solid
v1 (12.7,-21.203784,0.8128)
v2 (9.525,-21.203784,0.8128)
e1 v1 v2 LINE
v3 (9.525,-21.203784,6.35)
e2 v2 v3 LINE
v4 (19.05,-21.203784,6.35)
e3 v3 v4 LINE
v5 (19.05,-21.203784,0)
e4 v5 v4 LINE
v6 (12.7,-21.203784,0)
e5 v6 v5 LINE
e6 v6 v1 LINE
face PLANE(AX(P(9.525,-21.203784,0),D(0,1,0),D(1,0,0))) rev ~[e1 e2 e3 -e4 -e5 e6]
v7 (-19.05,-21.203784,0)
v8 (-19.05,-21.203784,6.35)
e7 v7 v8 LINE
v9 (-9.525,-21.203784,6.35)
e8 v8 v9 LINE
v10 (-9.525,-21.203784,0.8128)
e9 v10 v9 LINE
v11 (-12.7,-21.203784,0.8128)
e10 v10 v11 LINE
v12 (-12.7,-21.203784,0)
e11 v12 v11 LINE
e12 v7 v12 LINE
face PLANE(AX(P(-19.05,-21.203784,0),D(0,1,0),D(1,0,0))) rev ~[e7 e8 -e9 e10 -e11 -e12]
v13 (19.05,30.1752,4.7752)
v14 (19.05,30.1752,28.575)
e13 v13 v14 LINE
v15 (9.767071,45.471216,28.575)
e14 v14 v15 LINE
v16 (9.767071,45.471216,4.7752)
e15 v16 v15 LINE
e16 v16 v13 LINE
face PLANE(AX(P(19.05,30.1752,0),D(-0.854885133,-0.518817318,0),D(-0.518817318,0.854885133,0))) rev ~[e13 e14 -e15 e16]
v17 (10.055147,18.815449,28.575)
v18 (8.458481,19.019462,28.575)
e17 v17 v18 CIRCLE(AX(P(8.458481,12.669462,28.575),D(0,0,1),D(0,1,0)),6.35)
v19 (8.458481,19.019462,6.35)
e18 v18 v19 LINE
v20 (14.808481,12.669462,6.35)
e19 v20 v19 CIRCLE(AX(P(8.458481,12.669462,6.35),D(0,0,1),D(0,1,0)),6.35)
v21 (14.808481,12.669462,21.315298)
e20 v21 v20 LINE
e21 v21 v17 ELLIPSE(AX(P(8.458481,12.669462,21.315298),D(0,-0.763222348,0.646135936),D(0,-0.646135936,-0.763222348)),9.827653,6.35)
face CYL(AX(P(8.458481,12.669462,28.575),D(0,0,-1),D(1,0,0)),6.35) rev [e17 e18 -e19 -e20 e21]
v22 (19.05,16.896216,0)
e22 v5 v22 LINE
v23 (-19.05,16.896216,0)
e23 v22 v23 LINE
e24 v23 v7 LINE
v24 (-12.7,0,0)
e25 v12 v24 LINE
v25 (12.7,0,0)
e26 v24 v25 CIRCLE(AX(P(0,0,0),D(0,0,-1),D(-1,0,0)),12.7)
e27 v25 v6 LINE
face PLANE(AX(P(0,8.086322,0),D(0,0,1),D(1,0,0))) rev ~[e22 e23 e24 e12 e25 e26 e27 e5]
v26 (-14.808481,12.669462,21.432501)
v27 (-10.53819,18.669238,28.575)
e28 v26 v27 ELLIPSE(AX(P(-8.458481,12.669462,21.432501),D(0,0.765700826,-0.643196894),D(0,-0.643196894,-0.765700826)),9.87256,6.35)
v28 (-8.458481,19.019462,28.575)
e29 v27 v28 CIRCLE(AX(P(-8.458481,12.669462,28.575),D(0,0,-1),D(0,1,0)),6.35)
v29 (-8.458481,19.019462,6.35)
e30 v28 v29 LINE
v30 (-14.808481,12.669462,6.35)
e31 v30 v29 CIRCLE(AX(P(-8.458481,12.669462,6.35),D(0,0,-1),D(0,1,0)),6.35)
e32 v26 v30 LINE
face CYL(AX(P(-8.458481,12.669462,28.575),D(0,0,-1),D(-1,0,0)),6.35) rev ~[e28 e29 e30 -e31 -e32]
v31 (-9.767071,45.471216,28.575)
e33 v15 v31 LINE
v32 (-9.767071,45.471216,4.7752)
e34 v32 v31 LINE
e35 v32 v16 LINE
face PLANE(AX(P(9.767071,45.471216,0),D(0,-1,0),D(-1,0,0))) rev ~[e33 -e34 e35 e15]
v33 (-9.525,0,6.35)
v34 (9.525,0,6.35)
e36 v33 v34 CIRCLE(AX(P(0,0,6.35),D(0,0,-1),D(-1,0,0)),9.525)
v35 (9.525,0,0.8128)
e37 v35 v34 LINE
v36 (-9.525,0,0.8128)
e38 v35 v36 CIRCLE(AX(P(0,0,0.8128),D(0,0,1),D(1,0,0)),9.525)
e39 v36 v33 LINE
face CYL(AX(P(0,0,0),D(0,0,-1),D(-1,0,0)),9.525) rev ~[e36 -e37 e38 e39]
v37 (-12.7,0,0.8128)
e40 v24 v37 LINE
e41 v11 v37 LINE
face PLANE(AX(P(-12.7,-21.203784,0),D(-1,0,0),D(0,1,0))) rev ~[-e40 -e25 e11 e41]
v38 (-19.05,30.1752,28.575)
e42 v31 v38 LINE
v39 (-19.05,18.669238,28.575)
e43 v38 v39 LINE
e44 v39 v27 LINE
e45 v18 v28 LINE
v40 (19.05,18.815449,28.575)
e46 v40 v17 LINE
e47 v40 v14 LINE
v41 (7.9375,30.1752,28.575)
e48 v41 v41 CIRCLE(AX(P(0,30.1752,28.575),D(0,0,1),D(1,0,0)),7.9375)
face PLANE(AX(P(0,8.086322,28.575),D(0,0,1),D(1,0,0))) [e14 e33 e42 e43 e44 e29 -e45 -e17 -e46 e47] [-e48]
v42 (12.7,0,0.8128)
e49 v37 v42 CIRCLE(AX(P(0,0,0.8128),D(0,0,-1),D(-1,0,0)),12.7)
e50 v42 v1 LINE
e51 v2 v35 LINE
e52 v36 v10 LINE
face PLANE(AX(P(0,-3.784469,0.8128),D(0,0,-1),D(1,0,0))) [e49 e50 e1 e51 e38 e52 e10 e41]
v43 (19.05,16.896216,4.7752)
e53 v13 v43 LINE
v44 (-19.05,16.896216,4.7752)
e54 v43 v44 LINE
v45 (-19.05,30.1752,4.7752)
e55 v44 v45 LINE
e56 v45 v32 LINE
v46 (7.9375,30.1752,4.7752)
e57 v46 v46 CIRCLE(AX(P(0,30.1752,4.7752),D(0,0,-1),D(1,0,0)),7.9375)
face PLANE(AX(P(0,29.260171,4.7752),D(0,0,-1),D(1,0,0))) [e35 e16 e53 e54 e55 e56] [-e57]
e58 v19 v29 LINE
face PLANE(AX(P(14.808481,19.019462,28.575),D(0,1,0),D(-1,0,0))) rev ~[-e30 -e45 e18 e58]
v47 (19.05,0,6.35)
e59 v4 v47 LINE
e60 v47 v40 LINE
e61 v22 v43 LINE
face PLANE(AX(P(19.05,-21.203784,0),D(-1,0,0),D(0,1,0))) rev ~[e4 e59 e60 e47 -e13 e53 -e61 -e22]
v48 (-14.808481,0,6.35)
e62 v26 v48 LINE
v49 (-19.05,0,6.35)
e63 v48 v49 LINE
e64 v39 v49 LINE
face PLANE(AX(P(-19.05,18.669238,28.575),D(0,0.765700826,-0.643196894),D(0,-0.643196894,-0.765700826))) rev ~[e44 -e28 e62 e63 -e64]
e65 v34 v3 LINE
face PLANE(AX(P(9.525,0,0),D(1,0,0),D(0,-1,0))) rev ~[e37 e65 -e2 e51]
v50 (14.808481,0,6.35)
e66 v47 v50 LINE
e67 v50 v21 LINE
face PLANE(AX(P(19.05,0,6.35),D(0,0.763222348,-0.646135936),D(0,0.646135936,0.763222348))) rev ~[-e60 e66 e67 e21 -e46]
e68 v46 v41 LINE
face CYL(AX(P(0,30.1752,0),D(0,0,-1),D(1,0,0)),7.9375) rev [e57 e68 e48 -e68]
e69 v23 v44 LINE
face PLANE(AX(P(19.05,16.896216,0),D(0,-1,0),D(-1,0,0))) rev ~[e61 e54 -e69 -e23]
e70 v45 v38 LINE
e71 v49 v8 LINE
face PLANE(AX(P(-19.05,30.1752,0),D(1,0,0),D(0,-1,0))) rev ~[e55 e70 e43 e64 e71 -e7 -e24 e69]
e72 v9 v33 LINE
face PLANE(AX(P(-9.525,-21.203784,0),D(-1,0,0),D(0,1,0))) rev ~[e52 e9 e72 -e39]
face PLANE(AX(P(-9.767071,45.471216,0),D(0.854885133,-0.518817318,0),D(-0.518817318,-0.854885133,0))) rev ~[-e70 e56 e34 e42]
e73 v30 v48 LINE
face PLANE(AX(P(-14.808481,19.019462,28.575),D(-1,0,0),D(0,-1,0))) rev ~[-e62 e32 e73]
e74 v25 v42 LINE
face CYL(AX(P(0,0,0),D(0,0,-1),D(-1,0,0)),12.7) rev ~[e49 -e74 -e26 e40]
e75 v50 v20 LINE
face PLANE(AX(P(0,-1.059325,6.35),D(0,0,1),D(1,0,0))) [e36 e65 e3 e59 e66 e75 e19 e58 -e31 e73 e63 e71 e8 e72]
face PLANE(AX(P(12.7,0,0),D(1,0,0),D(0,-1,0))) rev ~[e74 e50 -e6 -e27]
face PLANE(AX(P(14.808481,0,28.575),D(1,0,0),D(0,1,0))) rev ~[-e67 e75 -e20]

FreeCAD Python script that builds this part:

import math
import FreeCAD as App
import Part
import Sketcher

V = App.Vector
Q = App.Units.Quantity


def edges_at(feature, points):
    """Names of the edges that pass closest to the given points."""
    edges = feature.Shape.Edges
    near = lambda p: min(range(len(edges)), key=lambda i: edges[i].distToShape(Part.Vertex(*p))[0])
    return sorted({f"Edge{near(p) + 1}" for p in points})


def add_polygon(sketch, points):
    """Adds a closed chain of lines whose ends are joined by coincident constraints."""
    first, n = sketch.GeometryCount, len(points)
    for a, b in zip(points, points[1:] + points[:1]):
        sketch.addGeometry(Part.LineSegment(App.Vector(*a, 0), App.Vector(*b, 0)), False)
    for i in range(n):
        sketch.addConstraint(Sketcher.Constraint("Coincident", first + i, 2, first + (i + 1) % n, 1))

doc = App.newDocument("Part")
body = doc.addObject("PartDesign::Body", "Body")

# Sketch on XY plane
sketch1 = doc.addObject("Sketcher::SketchObject", "Sketch")
body.addObject(sketch1)
sketch1.AttachmentSupport = (doc.XY_Plane, [""])
sketch1.MapMode = "FlatFace"
sketch1.addGeometry([
    Part.ArcOfCircle(Part.Circle(V(0, 0, 0), V(0, 0, 1), 10), math.radians(0), math.radians(180)),  # 0
    Part.LineSegment(V(10, 0, 0), V(10, -21, 0)),  # 1
    Part.LineSegment(V(10, -21, 0), V(19, -21, 0)),  # 2
    Part.LineSegment(V(19, -21, 0), V(19, 30, 0)),  # 3
    Part.LineSegment(V(19, 30, 0), V(10, 45, 0)),  # 4
    Part.LineSegment(V(10, 45, 0), V(-10, 45, 0)),  # 5
    Part.LineSegment(V(-10, 45, 0), V(-19, 30, 0)),  # 6
    Part.LineSegment(V(-19, 30, 0), V(-19, -21, 0)),  # 7
    Part.LineSegment(V(-19, -21, 0), V(-10, -21, 0)),  # 8
    Part.LineSegment(V(-10, -21, 0), V(-10, 0, 0)),  # 9
    Part.Circle(V(0, 30, 0), V(0, 0, 1), 8),  # 10
], False)
sketch1.addConstraint([
    Sketcher.Constraint("Tangent", 0, 1, 1, 1),
    Sketcher.Constraint("Coincident", 1, 2, 2, 1),
    Sketcher.Constraint("Coincident", 2, 2, 3, 1),
    Sketcher.Constraint("Coincident", 3, 2, 4, 1),
    Sketcher.Constraint("Coincident", 4, 2, 5, 1),
    Sketcher.Constraint("Coincident", 5, 2, 6, 1),
    Sketcher.Constraint("Coincident", 6, 2, 7, 1),
    Sketcher.Constraint("Coincident", 7, 2, 8, 1),
    Sketcher.Constraint("Coincident", 8, 2, 9, 1),
    Sketcher.Constraint("Tangent", 9, 2, 0, 2),
    Sketcher.Constraint("Vertical", 1),
    Sketcher.Constraint("Horizontal", 2),
    Sketcher.Constraint("Vertical", 3),
    Sketcher.Constraint("Horizontal", 5),
    Sketcher.Constraint("Vertical", 7),
    Sketcher.Constraint("Horizontal", 8),
    Sketcher.Constraint("Vertical", 9),
    Sketcher.Constraint("Coincident", 0, 3, -1, 1),
    Sketcher.Constraint("Symmetric", 3, 2, 6, 2, -2),
    Sketcher.Constraint("PointOnObject", 10, 3, -2),
    Sketcher.Constraint("Horizontal", 10, 3, 3, 2),
    Sketcher.Constraint("Horizontal", 2, 2, 7, 2),
    Sketcher.Constraint("Equal", 4, 6),
    Sketcher.Constraint("Diameter", 10, Q("0.625 in")),
    Sketcher.Constraint("Radius", 0, Q("0.375 in")),
    Sketcher.Constraint("DistanceX", 6, 2, 3, 2, Q("1.5 in")),
    Sketcher.Constraint("DistanceY", -1, 1, 10, 3, Q("1.188 in")),
    Sketcher.Constraint("DistanceY", 1, 2, 4, 2, Q("2.625 in")),
    Sketcher.Constraint("DistanceX", 5, 2, 5, 1, 19.534142),
    Sketcher.Constraint("Distance", 4, 17.892481),
])
pad1 = doc.addObject("PartDesign::Pad", "Pad")
body.addObject(pad1)
pad1.Profile = sketch1
pad1.Length = Q("1.125 in")

# Sketch on XY plane
sketch2 = doc.addObject("Sketcher::SketchObject", "Sketch001")
body.addObject(sketch2)
sketch2.AttachmentSupport = (doc.XY_Plane, [""])
sketch2.MapMode = "FlatFace"
sketch2.addGeometry([
    Part.LineSegment(V(-12.7, -21.2, 0), V(-12.7, 0, 0)),  # 0
    Part.ArcOfCircle(Part.Circle(V(0, 0, 0), V(0, 0, 1), 12.7), math.radians(0), math.radians(180)),  # 1
    Part.LineSegment(V(12.7, 0, 0), V(12.7, -21.2, 0)),  # 2
    Part.LineSegment(V(12.7, -21.2, 0), V(9.5, -21.2, 0)),  # 3
    Part.LineSegment(V(9.5, -21.2, 0), V(9.5, 0, 0)),  # 4
    Part.ArcOfCircle(Part.Circle(V(0, 0, 0), V(0, 0, 1), 9.5), math.radians(0), math.radians(180)),  # 5
    Part.LineSegment(V(-9.5, 0, 0), V(-9.5, -21.2, 0)),  # 6
    Part.LineSegment(V(-9.5, -21.2, 0), V(-12.7, -21.2, 0)),  # 7
], False)
sketch2.addConstraint([
    Sketcher.Constraint("Tangent", 0, 2, 1, 2),
    Sketcher.Constraint("Tangent", 1, 1, 2, 1),
    Sketcher.Constraint("Coincident", 2, 2, 3, 1),
    Sketcher.Constraint("Coincident", 3, 2, 4, 1),
    Sketcher.Constraint("Tangent", 4, 2, 5, 1),
    Sketcher.Constraint("Tangent", 5, 2, 6, 1),
    Sketcher.Constraint("Coincident", 6, 2, 7, 1),
    Sketcher.Constraint("Coincident", 7, 2, 0, 1),
    Sketcher.Constraint("Vertical", 0),
    Sketcher.Constraint("Vertical", 2),
    Sketcher.Constraint("Horizontal", 3),
    Sketcher.Constraint("Vertical", 4),
    Sketcher.Constraint("Vertical", 6),
    Sketcher.Constraint("Horizontal", 7),
    Sketcher.Constraint("Coincident", 1, 3, -1, 1),
    Sketcher.Constraint("Coincident", 5, 3, -1, 1),
    Sketcher.Constraint("Horizontal", 3, 2, 6, 2),
    Sketcher.Constraint("Radius", 1, Q("0.5 in")),
    Sketcher.Constraint("Radius", 5, Q("0.375 in")),
    Sketcher.Constraint("DistanceY", 0, 1, 0, 2, 21.203784),
])
pocket1 = doc.addObject("PartDesign::Pocket", "Pocket")
body.addObject(pocket1)
pocket1.Profile = sketch2
pocket1.Length = Q("0.032 in")
pocket1.Reversed = True

# Sketch on XY plane
sketch3 = doc.addObject("Sketcher::SketchObject", "Sketch002")
body.addObject(sketch3)
sketch3.AttachmentSupport = (doc.XY_Plane, [""])
sketch3.MapMode = "FlatFace"
add_polygon(sketch3, [(19, 17), (-19, 17), (-19, 30), (-10, 45), (10, 45), (19, 30)])  # lines 0-5
sketch3.addGeometry(Part.Circle(V(0, 30, 0), V(0, 0, 1), 8), False)  # 6
sketch3.addConstraint([
    Sketcher.Constraint("Horizontal", 0),
    Sketcher.Constraint("Vertical", 1),
    Sketcher.Constraint("Horizontal", 3),
    Sketcher.Constraint("Vertical", 5),
    Sketcher.Constraint("Symmetric", 1, 2, 4, 2, -2),
    Sketcher.Constraint("PointOnObject", 6, 3, -2),
    Sketcher.Constraint("Horizontal", 6, 3, 1, 2),
    Sketcher.Constraint("Equal", 2, 4),
    Sketcher.Constraint("Diameter", 6, Q("0.625 in")),
    Sketcher.Constraint("DistanceX", 0, 2, 0, 1, Q("1.5 in")),
    Sketcher.Constraint("DistanceY", -1, 1, 6, 3, Q("1.188 in")),
    Sketcher.Constraint("DistanceY", 0, 2, 2, 2, Q("1.125 in")),
    Sketcher.Constraint("DistanceX", 3, 1, 3, 2, 19.534142),
    Sketcher.Constraint("Distance", 2, 17.892481),
])
pocket2 = doc.addObject("PartDesign::Pocket", "Pocket001")
body.addObject(pocket2)
pocket2.Profile = sketch3
pocket2.Length = Q("0.188 in")
pocket2.Reversed = True

# Sketch on XY plane
sketch4 = doc.addObject("Sketcher::SketchObject", "Sketch003")
body.addObject(sketch4)
sketch4.AttachmentSupport = (doc.XY_Plane, [""])
sketch4.MapMode = "FlatFace"
sketch4.AttachmentOffset = App.Placement(V(0, 0, 1.125 * 25.4), App.Rotation())
sketch4.addGeometry([
    Part.LineSegment(V(-14.8, 19, 0), V(-14.8, 0, 0)),  # 0
    Part.LineSegment(V(-14.8, 0, 0), V(-19.1, 0, 0)),  # 1
    Part.LineSegment(V(-19.1, 0, 0), V(-19.1, -21.2, 0)),  # 2
    Part.LineSegment(V(-19.1, -21.2, 0), V(-9.5, -21.2, 0)),  # 3
    Part.LineSegment(V(-9.5, -21.2, 0), V(-9.5, 0, 0)),  # 4
    Part.ArcOfCircle(Part.Circle(V(0, 0, 0), V(0, 0, 1), 9.5), math.radians(0), math.radians(180)),  # 5
    Part.LineSegment(V(9.5, 0, 0), V(9.5, -21.2, 0)),  # 6
    Part.LineSegment(V(9.5, -21.2, 0), V(19.1, -21.2, 0)),  # 7
    Part.LineSegment(V(19.1, -21.2, 0), V(19.1, 0, 0)),  # 8
    Part.LineSegment(V(19.1, 0, 0), V(14.8, 0, 0)),  # 9
    Part.LineSegment(V(14.8, 0, 0), V(14.8, 19, 0)),  # 10
    Part.LineSegment(V(14.8, 19, 0), V(-14.8, 19, 0)),  # 11
], False)
sketch4.addConstraint([
    Sketcher.Constraint("Coincident", 0, 2, 1, 1),
    Sketcher.Constraint("Coincident", 1, 2, 2, 1),
    Sketcher.Constraint("Coincident", 2, 2, 3, 1),
    Sketcher.Constraint("Coincident", 3, 2, 4, 1),
    Sketcher.Constraint("Tangent", 4, 2, 5, 2),
    Sketcher.Constraint("Tangent", 5, 1, 6, 1),
    Sketcher.Constraint("Coincident", 6, 2, 7, 1),
    Sketcher.Constraint("Coincident", 7, 2, 8, 1),
    Sketcher.Constraint("Coincident", 8, 2, 9, 1),
    Sketcher.Constraint("Coincident", 9, 2, 10, 1),
    Sketcher.Constraint("Coincident", 10, 2, 11, 1),
    Sketcher.Constraint("Coincident", 11, 2, 0, 1),
    Sketcher.Constraint("Vertical", 0),
    Sketcher.Constraint("Horizontal", 1),
    Sketcher.Constraint("Vertical", 2),
    Sketcher.Constraint("Horizontal", 3),
    Sketcher.Constraint("Vertical", 4),
    Sketcher.Constraint("Vertical", 6),
    Sketcher.Constraint("Horizontal", 7),
    Sketcher.Constraint("Vertical", 8),
    Sketcher.Constraint("Horizontal", 9),
    Sketcher.Constraint("Vertical", 10),
    Sketcher.Constraint("Horizontal", 11),
    Sketcher.Constraint("Coincident", 5, 3, -1, 1),
    Sketcher.Constraint("Symmetric", 1, 2, 8, 2, -1, 1),
    Sketcher.Constraint("Symmetric", 0, 2, 9, 2, -2),
    Sketcher.Constraint("Horizontal", 3, 2, 6, 2),
    Sketcher.Constraint("Radius", 5, Q("0.375 in")),
    Sketcher.Constraint("DistanceX", 3, 1, 3, 2, Q("0.375 in")),
    Sketcher.Constraint("DistanceX", 1, 2, 1, 1, 4.241519),
    Sketcher.Constraint("DistanceY", 0, 2, 0, 1, 19.019462),
    Sketcher.Constraint("DistanceY", 2, 2, 2, 1, 21.203784),
])
pocket3 = doc.addObject("PartDesign::Pocket", "Pocket002")
body.addObject(pocket3)
pocket3.Profile = sketch4
pocket3.Length = Q("0.875 in")

# Sketch on YZ plane
sketch5 = doc.addObject("Sketcher::SketchObject", "Sketch004")
body.addObject(sketch5)
sketch5.AttachmentSupport = (doc.YZ_Plane, [""])
sketch5.MapMode = "FlatFace"
sketch5.AttachmentOffset = App.Placement(V(0, 0, 0.75 * 25.4), App.Rotation())
add_polygon(sketch5, [(0, 29), (0, 6), (19, 29)])  # lines 0-2
sketch5.addConstraint([
    Sketcher.Constraint("Vertical", 0),
    Sketcher.Constraint("Horizontal", 2),
    Sketcher.Constraint("PointOnObject", 0, 2, -2),
    Sketcher.Constraint("DistanceY", 0, 2, 0, 1, Q("0.875 in")),
    Sketcher.Constraint("DistanceY", -1, 1, 0, 2, Q("0.25 in")),
    Sketcher.Constraint("DistanceX", 2, 2, 2, 1, 18.815449),
])
pocket4 = doc.addObject("PartDesign::Pocket", "Pocket003")
body.addObject(pocket4)
pocket4.Profile = sketch5
pocket4.Length = Q("1 in")

# Sketch on YZ plane
sketch6 = doc.addObject("Sketcher::SketchObject", "Sketch005")
body.addObject(sketch6)
sketch6.AttachmentSupport = (doc.YZ_Plane, [""])
sketch6.MapMode = "FlatFace"
sketch6.AttachmentOffset = App.Placement(V(0, 0, -0.75 * 25.4), App.Rotation())
add_polygon(sketch6, [(19, 29), (0, 6), (0, 29)])  # lines 0-2
sketch6.addConstraint([
    Sketcher.Constraint("Vertical", 1),
    Sketcher.Constraint("Horizontal", 2),
    Sketcher.Constraint("PointOnObject", 0, 2, -2),
    Sketcher.Constraint("DistanceY", 1, 1, 1, 2, Q("0.875 in")),
    Sketcher.Constraint("DistanceY", -1, 1, 0, 2, Q("0.25 in")),
    Sketcher.Constraint("DistanceX", 2, 1, 2, 2, 18.669238),
])
pocket5 = doc.addObject("PartDesign::Pocket", "Pocket004")
body.addObject(pocket5)
pocket5.Profile = sketch6
pocket5.Length = Q("1 in")
pocket5.Reversed = True
doc.recompute()

fillet = doc.addObject("PartDesign::Fillet", "Fillet")
body.addObject(fillet)
fillet.Base = (pocket5, edges_at(pocket5, [(-14.808, 19.019, 17.462), (14.808, 19.019, 17.462)]))
fillet.Radius = Q("0.25 in")

doc.recompute()
